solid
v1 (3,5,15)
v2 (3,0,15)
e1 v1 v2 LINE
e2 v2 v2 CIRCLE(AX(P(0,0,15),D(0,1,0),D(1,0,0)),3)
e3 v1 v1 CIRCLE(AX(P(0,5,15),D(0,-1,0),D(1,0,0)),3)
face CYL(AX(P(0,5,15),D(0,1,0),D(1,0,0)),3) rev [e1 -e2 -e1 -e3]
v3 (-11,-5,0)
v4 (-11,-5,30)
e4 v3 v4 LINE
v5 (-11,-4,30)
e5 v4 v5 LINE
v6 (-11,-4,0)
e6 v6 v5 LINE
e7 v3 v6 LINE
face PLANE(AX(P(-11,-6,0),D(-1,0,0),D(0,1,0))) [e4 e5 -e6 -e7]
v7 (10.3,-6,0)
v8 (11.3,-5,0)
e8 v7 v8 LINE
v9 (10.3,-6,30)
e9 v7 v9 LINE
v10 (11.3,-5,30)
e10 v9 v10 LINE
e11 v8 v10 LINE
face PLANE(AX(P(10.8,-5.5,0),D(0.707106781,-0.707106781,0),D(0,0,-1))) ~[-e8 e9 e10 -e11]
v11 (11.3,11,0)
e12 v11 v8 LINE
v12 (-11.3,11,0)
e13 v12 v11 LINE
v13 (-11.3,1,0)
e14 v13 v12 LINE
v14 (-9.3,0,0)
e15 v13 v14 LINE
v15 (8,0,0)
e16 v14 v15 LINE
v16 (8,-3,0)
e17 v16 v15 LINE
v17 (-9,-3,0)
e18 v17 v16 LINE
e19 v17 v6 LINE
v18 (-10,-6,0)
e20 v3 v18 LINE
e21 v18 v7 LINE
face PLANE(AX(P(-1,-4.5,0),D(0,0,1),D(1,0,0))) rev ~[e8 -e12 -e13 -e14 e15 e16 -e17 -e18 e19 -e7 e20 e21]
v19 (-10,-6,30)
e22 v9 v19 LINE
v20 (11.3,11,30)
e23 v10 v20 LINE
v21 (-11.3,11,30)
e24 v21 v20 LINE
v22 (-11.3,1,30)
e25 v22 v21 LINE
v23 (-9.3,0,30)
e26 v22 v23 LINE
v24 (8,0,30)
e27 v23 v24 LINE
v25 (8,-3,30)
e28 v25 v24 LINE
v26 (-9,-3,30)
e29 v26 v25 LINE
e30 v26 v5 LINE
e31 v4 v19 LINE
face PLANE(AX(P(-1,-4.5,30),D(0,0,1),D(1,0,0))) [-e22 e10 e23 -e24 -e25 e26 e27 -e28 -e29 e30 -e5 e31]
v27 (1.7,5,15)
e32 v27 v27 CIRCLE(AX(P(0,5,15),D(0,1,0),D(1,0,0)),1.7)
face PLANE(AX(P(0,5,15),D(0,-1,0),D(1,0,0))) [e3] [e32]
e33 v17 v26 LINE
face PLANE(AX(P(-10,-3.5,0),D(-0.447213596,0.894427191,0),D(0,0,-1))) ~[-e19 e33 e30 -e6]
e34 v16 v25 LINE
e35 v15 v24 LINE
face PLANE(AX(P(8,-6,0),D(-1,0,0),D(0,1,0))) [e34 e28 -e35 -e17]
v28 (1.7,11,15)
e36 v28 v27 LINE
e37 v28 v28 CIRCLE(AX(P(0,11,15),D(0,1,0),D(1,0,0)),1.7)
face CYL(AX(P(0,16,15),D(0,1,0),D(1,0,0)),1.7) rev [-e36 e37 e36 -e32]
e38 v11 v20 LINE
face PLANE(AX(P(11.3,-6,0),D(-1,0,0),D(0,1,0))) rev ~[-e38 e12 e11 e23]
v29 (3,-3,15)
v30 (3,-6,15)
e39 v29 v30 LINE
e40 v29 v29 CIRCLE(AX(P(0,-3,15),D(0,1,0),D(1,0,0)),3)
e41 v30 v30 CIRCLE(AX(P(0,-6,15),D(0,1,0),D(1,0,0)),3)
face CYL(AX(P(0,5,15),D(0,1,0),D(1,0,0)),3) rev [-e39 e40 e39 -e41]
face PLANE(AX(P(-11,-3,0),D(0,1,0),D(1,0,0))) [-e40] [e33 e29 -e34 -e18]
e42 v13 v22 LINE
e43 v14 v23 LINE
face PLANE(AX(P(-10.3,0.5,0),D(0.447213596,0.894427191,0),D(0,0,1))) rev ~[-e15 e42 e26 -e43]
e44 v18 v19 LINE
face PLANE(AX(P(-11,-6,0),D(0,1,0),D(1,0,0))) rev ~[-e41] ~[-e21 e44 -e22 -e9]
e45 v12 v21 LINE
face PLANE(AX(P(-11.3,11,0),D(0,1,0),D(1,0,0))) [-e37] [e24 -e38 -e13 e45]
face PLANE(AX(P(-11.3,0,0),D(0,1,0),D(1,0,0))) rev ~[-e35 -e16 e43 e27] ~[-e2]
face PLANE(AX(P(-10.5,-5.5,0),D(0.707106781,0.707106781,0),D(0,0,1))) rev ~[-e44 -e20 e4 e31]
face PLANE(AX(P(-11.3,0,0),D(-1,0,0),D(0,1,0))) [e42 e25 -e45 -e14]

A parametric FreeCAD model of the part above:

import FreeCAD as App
import Part
import Sketcher

V = App.Vector
Q = App.Units.Quantity


def edges_at(feature, points):
    """Names of the edges that pass closest to the given points."""
    edges = feature.Shape.Edges
    near = lambda p: min(range(len(edges)), key=lambda i: edges[i].distToShape(Part.Vertex(*p))[0])
    return sorted({f"Edge{near(p) + 1}" for p in points})


def add_polygon(sketch, points):
    """Adds a closed chain of lines whose ends are joined by coincident constraints."""
    first, n = sketch.GeometryCount, len(points)
    for a, b in zip(points, points[1:] + points[:1]):
        sketch.addGeometry(Part.LineSegment(App.Vector(*a, 0), App.Vector(*b, 0)), False)
    for i in range(n):
        sketch.addConstraint(Sketcher.Constraint("Coincident", first + i, 2, first + (i + 1) % n, 1))

doc = App.newDocument("Part")
body = doc.addObject("PartDesign::Body", "Body")

# Sketch on XZ plane
sketch1 = body.newObject("Sketcher::SketchObject", "Sketch")
sketch1.AttachmentSupport = (doc.getObject("XZ_Plane"), [""])
sketch1.MapMode = "FlatFace"
sketch1.AttachmentOffset = App.Placement(V(0, 0, -5), App.Rotation())
sketch1.addGeometry(Part.Circle(V(0, 15, 0), V(0, 0, 1), 3), False)
sketch1.addConstraint([
    Sketcher.Constraint("PointOnObject", 0, 3, -2),
    Sketcher.Constraint("Diameter", 0, Q("6 mm")),
    Sketcher.Constraint("DistanceY", -1, 1, 0, 3, Q("15 mm")),
])
pad1 = body.newObject("PartDesign::Pad", "Pad")
pad1.Profile = sketch1
pad1.Length = 25
body2 = doc.addObject("PartDesign::Body", "Body001")

# Sketch on XZ plane
sketch2 = body2.newObject("Sketcher::SketchObject", "Sketch001")
sketch2.AttachmentSupport = (doc.getObject("XZ_Plane001"), [""])
sketch2.MapMode = "FlatFace"
sketch2.AttachmentOffset = App.Placement(V(0, 0, -16), App.Rotation())
sketch2.addGeometry(Part.Circle(V(0, 15, 0), V(0, 0, 1), 1.7), False)
sketch2.addConstraint([
    Sketcher.Constraint("PointOnObject", 0, 3, -2),
    Sketcher.Constraint("Diameter", 0, Q("3.4 mm")),
    Sketcher.Constraint("DistanceY", -1, 1, 0, 3, Q("15 mm")),
])
pad2 = body2.newObject("PartDesign::Pad", "Pad001")
pad2.Profile = sketch2
pad2.Length = 25
body3 = doc.addObject("PartDesign::Body", "Body002")

# Sketch on XY plane
sketch3 = body3.newObject("Sketcher::SketchObject", "Sketch002")
sketch3.AttachmentSupport = (doc.getObject("XY_Plane002"), [""])
sketch3.MapMode = "FlatFace"
add_polygon(sketch3, [(-11.3, 11), (-11.3, 0), (11.3, 0), (11.3, 11)])  # lines 0-3
sketch3.addConstraint([
    Sketcher.Constraint("Vertical", 0),
    Sketcher.Constraint("Horizontal", 1),
    Sketcher.Constraint("Vertical", 2),
    Sketcher.Constraint("Horizontal", 3),
    Sketcher.Constraint("Symmetric", 0, 2, 1, 2, -1, 1),
    Sketcher.Constraint("DistanceY", 0, 2, 0, 1, Q("11 mm")),
    Sketcher.Constraint("DistanceX", 1, 1, 1, 2, Q("22.6 mm")),
])
pad3 = body3.newObject("PartDesign::Pad", "Pad002")
pad3.Profile = sketch3
pad3.Length = 30
body4 = doc.addObject("PartDesign::Body", "Body003")

# Sketch on XY plane
sketch4 = body4.newObject("Sketcher::SketchObject", "Sketch003")
sketch4.AttachmentSupport = (doc.getObject("XY_Plane003"), [""])
sketch4.MapMode = "FlatFace"
add_polygon(sketch4, [(8, 0), (8, -6), (11.3, -6), (11.3, 0)])  # lines 0-3
sketch4.addConstraint([
    Sketcher.Constraint("Vertical", 0),
    Sketcher.Constraint("Horizontal", 1),
    Sketcher.Constraint("Vertical", 2),
    Sketcher.Constraint("Horizontal", 3),
    Sketcher.Constraint("PointOnObject", 2, 2, -1),
    Sketcher.Constraint("DistanceY", 0, 2, 0, 1, Q("6 mm")),
    Sketcher.Constraint("DistanceX", 1, 1, 1, 2, Q("3.3 mm")),
    Sketcher.Constraint("DistanceX", -1, 1, 0, 2, Q("8 mm")),
])
pad4 = body4.newObject("PartDesign::Pad", "Pad003")
pad4.Profile = sketch4
pad4.Length = 30
body5 = doc.addObject("PartDesign::Body", "Body004")
body5.AllowCompound = True

# Sketch on XY plane
sketch5 = body5.newObject("Sketcher::SketchObject", "Sketch004")
sketch5.AttachmentSupport = (doc.getObject("XY_Plane004"), [""])
sketch5.MapMode = "FlatFace"
add_polygon(sketch5, [(-11, -3), (-11, -6), (9, -6), (9, -3)])  # lines 0-3
sketch5.addConstraint([
    Sketcher.Constraint("Vertical", 0),
    Sketcher.Constraint("Horizontal", 1),
    Sketcher.Constraint("Vertical", 2),
    Sketcher.Constraint("Horizontal", 3),
    Sketcher.Constraint("DistanceX", 1, 1, 1, 2, Q("20 mm")),
    Sketcher.Constraint("DistanceY", 0, 2, 0, 1, Q("3 mm")),
    Sketcher.Constraint("DistanceX", 0, 2, -1, 1, Q("11 mm")),
    Sketcher.Constraint("DistanceY", 0, 2, -1, 1, Q("6 mm")),
])
pad5 = body5.newObject("PartDesign::Pad", "Pad004")
pad5.Profile = sketch5
pad5.Length = 30
doc.recompute()

boolean = body5.newObject("PartDesign::Boolean", "Boolean")
boolean.Type = "Fuse"
boolean.addObjects([body3])
doc.recompute()

boolean2 = body5.newObject("PartDesign::Boolean", "Boolean001")
boolean2.Type = "Fuse"
boolean2.addObjects([body4])
doc.recompute()

chamfer = body5.newObject("PartDesign::Chamfer", "Chamfer")
chamfer.Base = (boolean2, edges_at(boolean2, [(11.3, -6, 15)]))
chamfer.Size = 1
doc.recompute()

chamfer2 = body5.newObject("PartDesign::Chamfer", "Chamfer001")
chamfer2.Base = (chamfer, edges_at(chamfer, [(-11.3, 0, 15)]))
chamfer2.ChamferType = "Two distances"
chamfer2.Size = 1
chamfer2.Size2 = 2
doc.recompute()

chamfer3 = body5.newObject("PartDesign::Chamfer", "Chamfer002")
chamfer3.Base = (chamfer2, edges_at(chamfer2, [(-11, -3, 15)]))
chamfer3.ChamferType = "Two distances"
chamfer3.Size = 2
chamfer3.Size2 = 1
doc.recompute()

boolean3 = body5.newObject("PartDesign::Boolean", "Boolean002")
boolean3.Type = "Cut"
boolean3.addObjects([body2])
doc.recompute()

boolean4 = body5.newObject("PartDesign::Boolean", "Boolean003")
boolean4.Type = "Cut"
boolean4.addObjects([body])
doc.recompute()

chamfer4 = body5.newObject("PartDesign::Chamfer", "Chamfer003")
chamfer4.Base = (boolean4, edges_at(boolean4, [(-11, -6, 15)]))
chamfer4.Size = 1

doc.recompute()
